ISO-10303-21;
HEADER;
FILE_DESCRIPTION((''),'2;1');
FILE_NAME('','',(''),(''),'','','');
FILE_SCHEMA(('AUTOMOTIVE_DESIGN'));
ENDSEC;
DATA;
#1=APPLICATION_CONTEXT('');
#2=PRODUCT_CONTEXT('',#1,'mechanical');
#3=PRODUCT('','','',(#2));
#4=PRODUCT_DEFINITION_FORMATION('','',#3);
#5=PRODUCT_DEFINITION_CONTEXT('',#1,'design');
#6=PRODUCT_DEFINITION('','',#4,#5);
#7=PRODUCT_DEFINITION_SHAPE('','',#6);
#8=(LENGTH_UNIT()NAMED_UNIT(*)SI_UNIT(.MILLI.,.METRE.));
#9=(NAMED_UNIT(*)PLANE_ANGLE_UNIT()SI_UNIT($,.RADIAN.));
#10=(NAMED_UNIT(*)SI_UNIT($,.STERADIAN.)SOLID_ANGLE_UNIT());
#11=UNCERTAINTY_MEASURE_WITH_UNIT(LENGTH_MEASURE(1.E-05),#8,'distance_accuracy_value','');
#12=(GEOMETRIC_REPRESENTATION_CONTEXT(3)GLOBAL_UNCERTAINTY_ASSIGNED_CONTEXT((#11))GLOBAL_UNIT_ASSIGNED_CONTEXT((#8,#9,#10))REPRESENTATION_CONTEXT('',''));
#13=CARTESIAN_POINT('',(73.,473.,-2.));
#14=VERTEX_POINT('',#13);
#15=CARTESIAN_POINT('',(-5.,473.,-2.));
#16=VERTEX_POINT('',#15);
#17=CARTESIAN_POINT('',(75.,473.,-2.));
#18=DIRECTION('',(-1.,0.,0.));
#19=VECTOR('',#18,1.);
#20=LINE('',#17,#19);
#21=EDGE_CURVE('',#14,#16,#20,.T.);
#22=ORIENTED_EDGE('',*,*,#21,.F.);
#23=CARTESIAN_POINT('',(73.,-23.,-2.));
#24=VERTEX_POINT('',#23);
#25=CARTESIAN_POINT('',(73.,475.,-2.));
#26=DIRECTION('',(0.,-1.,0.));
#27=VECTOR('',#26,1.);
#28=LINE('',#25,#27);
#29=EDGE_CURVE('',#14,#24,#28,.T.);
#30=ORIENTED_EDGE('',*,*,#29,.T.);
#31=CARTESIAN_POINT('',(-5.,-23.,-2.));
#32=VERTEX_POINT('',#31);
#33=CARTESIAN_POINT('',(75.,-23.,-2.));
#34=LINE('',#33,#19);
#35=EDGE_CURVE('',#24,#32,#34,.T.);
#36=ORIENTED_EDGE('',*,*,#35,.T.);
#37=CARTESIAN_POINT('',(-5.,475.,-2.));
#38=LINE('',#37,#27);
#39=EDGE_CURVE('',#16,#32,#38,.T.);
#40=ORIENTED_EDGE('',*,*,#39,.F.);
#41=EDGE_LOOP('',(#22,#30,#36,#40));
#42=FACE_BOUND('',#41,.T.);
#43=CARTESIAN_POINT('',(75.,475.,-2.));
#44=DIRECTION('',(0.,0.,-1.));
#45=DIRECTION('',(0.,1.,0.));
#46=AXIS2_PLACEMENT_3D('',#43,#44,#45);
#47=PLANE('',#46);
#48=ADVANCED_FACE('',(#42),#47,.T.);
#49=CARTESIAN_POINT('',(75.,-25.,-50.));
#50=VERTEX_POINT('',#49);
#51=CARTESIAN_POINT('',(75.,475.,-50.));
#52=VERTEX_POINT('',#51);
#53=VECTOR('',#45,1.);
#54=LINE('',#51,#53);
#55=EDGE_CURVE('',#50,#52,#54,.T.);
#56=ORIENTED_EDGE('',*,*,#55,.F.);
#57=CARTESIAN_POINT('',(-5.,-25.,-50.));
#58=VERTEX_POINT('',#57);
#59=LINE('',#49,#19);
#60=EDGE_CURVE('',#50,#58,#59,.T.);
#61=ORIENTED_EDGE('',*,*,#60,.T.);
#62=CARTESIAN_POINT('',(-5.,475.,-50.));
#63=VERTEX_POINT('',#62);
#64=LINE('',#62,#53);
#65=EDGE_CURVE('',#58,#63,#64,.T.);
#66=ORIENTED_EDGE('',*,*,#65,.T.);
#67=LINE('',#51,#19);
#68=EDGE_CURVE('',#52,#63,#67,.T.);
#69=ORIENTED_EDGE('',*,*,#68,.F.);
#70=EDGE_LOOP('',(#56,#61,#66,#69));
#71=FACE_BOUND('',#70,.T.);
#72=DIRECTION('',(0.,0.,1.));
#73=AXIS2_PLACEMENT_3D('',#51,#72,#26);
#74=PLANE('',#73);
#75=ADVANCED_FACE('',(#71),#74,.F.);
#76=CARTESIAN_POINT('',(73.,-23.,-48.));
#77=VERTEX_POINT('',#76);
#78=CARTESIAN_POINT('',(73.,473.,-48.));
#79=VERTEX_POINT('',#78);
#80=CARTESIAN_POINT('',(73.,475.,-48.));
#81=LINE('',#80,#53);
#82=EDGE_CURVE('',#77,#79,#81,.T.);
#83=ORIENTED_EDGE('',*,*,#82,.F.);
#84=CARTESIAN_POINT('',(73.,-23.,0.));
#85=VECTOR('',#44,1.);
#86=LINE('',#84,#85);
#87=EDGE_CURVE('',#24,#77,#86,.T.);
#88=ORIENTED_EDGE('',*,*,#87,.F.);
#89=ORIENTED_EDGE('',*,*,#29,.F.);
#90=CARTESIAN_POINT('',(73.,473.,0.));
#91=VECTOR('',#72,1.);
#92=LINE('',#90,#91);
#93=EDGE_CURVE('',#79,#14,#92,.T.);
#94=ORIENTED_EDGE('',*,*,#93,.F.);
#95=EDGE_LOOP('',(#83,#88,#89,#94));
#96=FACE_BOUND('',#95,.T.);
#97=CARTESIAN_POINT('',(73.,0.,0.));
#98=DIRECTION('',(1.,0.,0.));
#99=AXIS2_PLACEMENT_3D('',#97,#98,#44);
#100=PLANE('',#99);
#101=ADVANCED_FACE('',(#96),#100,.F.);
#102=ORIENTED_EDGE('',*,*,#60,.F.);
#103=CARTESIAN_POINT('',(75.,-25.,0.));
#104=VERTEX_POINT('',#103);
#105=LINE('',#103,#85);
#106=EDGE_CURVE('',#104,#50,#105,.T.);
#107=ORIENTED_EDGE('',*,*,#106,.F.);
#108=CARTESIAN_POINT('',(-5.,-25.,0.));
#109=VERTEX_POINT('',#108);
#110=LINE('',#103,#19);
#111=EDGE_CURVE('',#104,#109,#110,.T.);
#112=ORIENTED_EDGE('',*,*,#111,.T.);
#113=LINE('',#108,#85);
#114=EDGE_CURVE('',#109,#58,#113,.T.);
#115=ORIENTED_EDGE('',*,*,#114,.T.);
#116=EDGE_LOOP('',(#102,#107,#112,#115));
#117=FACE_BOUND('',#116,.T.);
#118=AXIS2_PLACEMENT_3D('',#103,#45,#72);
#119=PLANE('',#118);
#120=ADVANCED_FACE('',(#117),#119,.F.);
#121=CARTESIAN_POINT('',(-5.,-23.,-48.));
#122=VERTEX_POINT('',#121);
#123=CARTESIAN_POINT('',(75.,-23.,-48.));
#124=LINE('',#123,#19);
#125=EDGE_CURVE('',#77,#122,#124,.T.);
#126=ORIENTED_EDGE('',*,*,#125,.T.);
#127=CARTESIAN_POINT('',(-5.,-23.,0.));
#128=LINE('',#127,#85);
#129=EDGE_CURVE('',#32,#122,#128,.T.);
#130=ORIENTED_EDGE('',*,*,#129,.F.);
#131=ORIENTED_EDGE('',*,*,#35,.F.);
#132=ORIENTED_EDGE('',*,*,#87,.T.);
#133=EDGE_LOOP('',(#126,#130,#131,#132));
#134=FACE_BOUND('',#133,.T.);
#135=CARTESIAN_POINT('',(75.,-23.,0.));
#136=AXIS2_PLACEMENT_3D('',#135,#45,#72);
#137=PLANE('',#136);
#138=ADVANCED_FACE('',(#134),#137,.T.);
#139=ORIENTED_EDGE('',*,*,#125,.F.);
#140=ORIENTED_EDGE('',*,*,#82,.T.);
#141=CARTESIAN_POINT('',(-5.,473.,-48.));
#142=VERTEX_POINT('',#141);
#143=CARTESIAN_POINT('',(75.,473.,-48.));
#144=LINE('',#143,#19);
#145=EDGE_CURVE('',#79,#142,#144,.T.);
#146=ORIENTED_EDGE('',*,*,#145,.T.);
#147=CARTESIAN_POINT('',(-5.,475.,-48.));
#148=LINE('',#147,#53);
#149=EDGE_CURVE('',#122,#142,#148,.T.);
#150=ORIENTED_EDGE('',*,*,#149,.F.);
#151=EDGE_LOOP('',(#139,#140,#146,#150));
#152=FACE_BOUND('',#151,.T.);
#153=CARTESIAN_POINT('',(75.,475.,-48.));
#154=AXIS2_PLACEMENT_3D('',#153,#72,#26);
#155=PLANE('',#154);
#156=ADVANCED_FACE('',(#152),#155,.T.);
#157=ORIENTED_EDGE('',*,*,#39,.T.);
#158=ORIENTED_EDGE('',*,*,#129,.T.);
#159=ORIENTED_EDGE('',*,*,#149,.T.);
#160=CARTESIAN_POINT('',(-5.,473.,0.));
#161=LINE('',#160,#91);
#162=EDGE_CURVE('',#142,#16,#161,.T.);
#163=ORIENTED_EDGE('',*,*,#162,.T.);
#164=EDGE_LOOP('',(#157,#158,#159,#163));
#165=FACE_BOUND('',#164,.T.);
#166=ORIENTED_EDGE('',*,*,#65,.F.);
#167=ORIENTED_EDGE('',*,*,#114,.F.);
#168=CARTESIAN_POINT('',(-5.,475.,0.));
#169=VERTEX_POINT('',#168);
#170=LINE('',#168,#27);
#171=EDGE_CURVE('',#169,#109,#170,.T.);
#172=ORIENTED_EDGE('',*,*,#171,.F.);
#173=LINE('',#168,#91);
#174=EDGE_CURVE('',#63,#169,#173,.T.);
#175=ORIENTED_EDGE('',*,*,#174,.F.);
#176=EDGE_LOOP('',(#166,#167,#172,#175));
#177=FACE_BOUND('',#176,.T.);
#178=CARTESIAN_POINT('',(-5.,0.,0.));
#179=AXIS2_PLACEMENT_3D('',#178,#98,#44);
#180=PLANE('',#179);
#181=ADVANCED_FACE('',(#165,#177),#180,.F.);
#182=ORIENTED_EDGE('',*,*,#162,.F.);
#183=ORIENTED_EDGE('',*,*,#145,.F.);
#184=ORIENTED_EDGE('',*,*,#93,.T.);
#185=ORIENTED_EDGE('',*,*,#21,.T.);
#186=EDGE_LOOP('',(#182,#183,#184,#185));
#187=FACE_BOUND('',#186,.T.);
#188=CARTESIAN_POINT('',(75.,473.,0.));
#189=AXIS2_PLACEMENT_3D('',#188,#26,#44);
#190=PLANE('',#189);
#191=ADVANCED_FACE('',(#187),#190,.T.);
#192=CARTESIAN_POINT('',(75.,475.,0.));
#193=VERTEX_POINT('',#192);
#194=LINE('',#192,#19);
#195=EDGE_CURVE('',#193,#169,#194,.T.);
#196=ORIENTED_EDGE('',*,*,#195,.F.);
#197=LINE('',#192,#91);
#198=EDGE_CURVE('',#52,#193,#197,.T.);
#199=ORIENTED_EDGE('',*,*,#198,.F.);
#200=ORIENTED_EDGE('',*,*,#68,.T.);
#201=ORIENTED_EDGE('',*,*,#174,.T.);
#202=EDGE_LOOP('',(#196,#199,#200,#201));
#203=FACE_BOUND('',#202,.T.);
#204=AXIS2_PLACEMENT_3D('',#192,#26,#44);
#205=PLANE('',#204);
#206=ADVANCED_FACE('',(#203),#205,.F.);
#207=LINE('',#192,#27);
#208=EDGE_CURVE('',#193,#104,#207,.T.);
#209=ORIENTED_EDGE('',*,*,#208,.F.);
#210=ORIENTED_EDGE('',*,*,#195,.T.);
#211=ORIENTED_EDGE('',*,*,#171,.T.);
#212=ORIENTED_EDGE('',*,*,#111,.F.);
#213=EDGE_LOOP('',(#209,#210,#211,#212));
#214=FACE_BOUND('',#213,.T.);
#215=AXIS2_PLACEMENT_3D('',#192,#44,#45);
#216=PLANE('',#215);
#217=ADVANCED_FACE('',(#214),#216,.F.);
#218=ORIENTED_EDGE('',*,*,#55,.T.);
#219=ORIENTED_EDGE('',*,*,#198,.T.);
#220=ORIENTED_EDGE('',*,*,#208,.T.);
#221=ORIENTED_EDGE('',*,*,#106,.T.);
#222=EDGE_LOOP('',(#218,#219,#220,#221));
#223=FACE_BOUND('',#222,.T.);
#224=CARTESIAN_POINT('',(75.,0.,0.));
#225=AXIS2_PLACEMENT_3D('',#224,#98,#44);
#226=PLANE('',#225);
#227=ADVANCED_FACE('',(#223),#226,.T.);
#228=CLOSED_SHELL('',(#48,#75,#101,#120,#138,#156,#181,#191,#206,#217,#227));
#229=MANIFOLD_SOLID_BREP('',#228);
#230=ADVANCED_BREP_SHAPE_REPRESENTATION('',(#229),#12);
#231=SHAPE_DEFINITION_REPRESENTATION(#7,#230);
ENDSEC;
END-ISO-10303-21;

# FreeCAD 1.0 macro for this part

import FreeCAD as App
import Part
import Sketcher
from FreeCAD import Vector
Q = App.Units.Quantity


def add_polygon(sketch, points):
    """Adds a closed chain of lines whose ends are joined by coincident constraints."""
    first, n = sketch.GeometryCount, len(points)
    for a, b in zip(points, points[1:] + points[:1]):
        sketch.addGeometry(Part.LineSegment(App.Vector(*a, 0), App.Vector(*b, 0)), False)
    for i in range(n):
        sketch.addConstraint(Sketcher.Constraint("Coincident", first + i, 2, first + (i + 1) % n, 1))

doc = App.newDocument("Part")
body = doc.addObject("PartDesign::Body", "Body")

# Sketch on YZ plane
sketch1 = body.newObject("Sketcher::SketchObject", "Sketch")
sketch1.AttachmentSupport = (doc.getObject("YZ_Plane"), [""])
sketch1.MapMode = "FlatFace"
sketch1.AttachmentOffset = App.Placement(Vector(0, 0, -5), App.Rotation())
add_polygon(sketch1, [(475, 0), (-25, 0), (-25, -50), (475, -50)])  # lines 0-3
add_polygon(sketch1, [(-23, -48), (-23, -2), (473, -2), (473, -48)])  # lines 4-7
sketch1.addConstraint(Sketcher.Constraint("Horizontal", 0))
sketch1.addConstraint(Sketcher.Constraint("Vertical", 1))
sketch1.addConstraint(Sketcher.Constraint("Horizontal", 2))
sketch1.addConstraint(Sketcher.Constraint("Vertical", 3))
sketch1.addConstraint(Sketcher.Constraint("Vertical", 4))
sketch1.addConstraint(Sketcher.Constraint("Horizontal", 5))
sketch1.addConstraint(Sketcher.Constraint("Vertical", 6))
sketch1.addConstraint(Sketcher.Constraint("Horizontal", 7))
sketch1.addConstraint(Sketcher.Constraint("PointOnObject", 0, 2, -1))
sketch1.addConstraint(Sketcher.Constraint("DistanceX", 0, 2, 0, 1, Q("500 mm")))
sketch1.addConstraint(Sketcher.Constraint("DistanceX", 5, 1, 5, 2, Q("496 mm")))
sketch1.addConstraint(Sketcher.Constraint("DistanceY", 1, 2, 1, 1, Q("50 mm")))
sketch1.addConstraint(Sketcher.Constraint("DistanceY", 4, 1, 4, 2, Q("46 mm")))
sketch1.addConstraint(Sketcher.Constraint("DistanceX", 0, 2, -1, 1, Q("25 mm")))
sketch1.addConstraint(Sketcher.Constraint("DistanceX", 4, 2, -1, 1, Q("23 mm")))
sketch1.addConstraint(Sketcher.Constraint("DistanceY", 4, 2, -1, 1, Q("2 mm")))
pad1 = body.newObject("PartDesign::Pad", "Pad")
pad1.Profile = sketch1
pad1.Length = 80

# Sketch on YZ plane
sketch2 = body.newObject("Sketcher::SketchObject", "Sketch001")
sketch2.AttachmentSupport = (doc.getObject("YZ_Plane"), [""])
sketch2.MapMode = "FlatFace"
sketch2.AttachmentOffset = App.Placement(Vector(0, 0, 75), App.Rotation())
add_polygon(sketch2, [(475, 0), (-25, 0), (-25, -50), (475, -50)])  # lines 0-3
sketch2.addConstraint(Sketcher.Constraint("Horizontal", 0))
sketch2.addConstraint(Sketcher.Constraint("Vertical", 1))
sketch2.addConstraint(Sketcher.Constraint("Horizontal", 2))
sketch2.addConstraint(Sketcher.Constraint("Vertical", 3))
sketch2.addConstraint(Sketcher.Constraint("PointOnObject", 0, 2, -1))
sketch2.addConstraint(Sketcher.Constraint("DistanceX", 0, 2, 0, 1, Q("500 mm")))
sketch2.addConstraint(Sketcher.Constraint("DistanceY", 1, 2, 1, 1, Q("50 mm")))
sketch2.addConstraint(Sketcher.Constraint("DistanceX", 0, 2, -1, 1, Q("25 mm")))
pad2 = body.newObject("PartDesign::Pad", "Pad001")
pad2.Profile = sketch2
pad2.Length = 2
pad2.Reversed = True

doc.recompute()
